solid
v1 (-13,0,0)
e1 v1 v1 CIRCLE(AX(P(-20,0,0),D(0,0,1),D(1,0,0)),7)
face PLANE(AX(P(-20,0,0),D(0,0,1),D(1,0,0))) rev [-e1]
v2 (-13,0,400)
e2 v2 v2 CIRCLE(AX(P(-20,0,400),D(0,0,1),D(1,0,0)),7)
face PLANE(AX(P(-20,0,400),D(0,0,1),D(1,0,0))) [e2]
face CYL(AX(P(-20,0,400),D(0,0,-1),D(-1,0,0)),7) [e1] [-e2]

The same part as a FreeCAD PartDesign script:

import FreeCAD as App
import Part
import Sketcher

V = App.Vector
Q = App.Units.Quantity

doc = App.newDocument("Part")
body = doc.addObject("PartDesign::Body", "Body")

# Sketch on XY plane
sketch1 = body.newObject("Sketcher::SketchObject", "Sketch")
sketch1.AttachmentSupport = (doc.getObject("XY_Plane"), [""])
sketch1.MapMode = "FlatFace"
sketch1.addGeometry(Part.Circle(V(-20, 0, 0), V(0, 0, 1), 7), False)
sketch1.addConstraint([
    Sketcher.Constraint("PointOnObject", 0, 3, -1),
    Sketcher.Constraint("Diameter", 0, Q("14 mm")),
    Sketcher.Constraint("DistanceX", 0, 3, -1, 1, Q("20 mm")),
])
pad1 = body.newObject("PartDesign::Pad", "Pad")
pad1.Profile = sketch1
pad1.Length = 400

doc.recompute()
